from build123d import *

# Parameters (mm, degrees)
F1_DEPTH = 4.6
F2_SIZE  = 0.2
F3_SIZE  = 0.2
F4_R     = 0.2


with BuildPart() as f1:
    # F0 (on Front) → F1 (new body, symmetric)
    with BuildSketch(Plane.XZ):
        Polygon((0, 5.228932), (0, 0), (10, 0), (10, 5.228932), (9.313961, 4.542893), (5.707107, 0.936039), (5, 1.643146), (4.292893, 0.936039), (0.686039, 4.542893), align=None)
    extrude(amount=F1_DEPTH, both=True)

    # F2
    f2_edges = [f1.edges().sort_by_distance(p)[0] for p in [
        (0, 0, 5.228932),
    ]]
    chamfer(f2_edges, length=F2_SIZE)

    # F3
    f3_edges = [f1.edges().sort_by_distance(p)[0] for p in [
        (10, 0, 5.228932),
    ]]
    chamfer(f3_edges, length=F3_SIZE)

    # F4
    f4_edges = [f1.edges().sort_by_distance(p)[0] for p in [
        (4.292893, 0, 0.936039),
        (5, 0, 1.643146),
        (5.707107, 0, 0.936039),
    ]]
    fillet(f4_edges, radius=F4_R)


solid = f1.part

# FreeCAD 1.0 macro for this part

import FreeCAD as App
import Part
import Sketcher

V = App.Vector
Q = App.Units.Quantity


def edges_at(feature, points):
    """Names of the edges that pass closest to the given points."""
    edges = feature.Shape.Edges
    near = lambda p: min(range(len(edges)), key=lambda i: edges[i].distToShape(Part.Vertex(*p))[0])
    return sorted({f"Edge{near(p) + 1}" for p in points})

doc = App.newDocument("Part")
body = doc.addObject("PartDesign::Body", "Body")

sketch1 = body.newObject("Sketcher::SketchObject", "Sketch")
sketch1.AttachmentSupport = (doc.getObject("XZ_Plane"), [""])
sketch1.MapMode = "FlatFace"
sketch1.addGeometry(Part.LineSegment(V(0, 5.2, 0), V(0, 0, 0)), False)
sketch1.addGeometry(Part.LineSegment(V(0, 0, 0), V(10, 0, 0)), False)
sketch1.addGeometry(Part.LineSegment(V(10, 0, 0), V(10, 5.2, 0)), False)
sketch1.addGeometry(Part.LineSegment(V(10, 5.2, 0), V(5.7, 0.9, 0)), False)
sketch1.addGeometry(Part.LineSegment(V(5.7, 0.9, 0), V(5, 1.6, 0)), False)
sketch1.addGeometry(Part.LineSegment(V(5, 1.6, 0), V(4.3, 0.9, 0)), False)
sketch1.addGeometry(Part.LineSegment(V(4.3, 0.9, 0), V(0, 5.2, 0)), False)
sketch1.addConstraint(Sketcher.Constraint("Coincident", 0, 2, 1, 1))
sketch1.addConstraint(Sketcher.Constraint("Coincident", 1, 2, 2, 1))
sketch1.addConstraint(Sketcher.Constraint("Coincident", 2, 2, 3, 1))
sketch1.addConstraint(Sketcher.Constraint("Coincident", 3, 2, 4, 1))
sketch1.addConstraint(Sketcher.Constraint("Coincident", 4, 2, 5, 1))
sketch1.addConstraint(Sketcher.Constraint("Coincident", 5, 2, 6, 1))
sketch1.addConstraint(Sketcher.Constraint("Coincident", 6, 2, 0, 1))
sketch1.addConstraint(Sketcher.Constraint("Vertical", 0))
sketch1.addConstraint(Sketcher.Constraint("Horizontal", 1))
sketch1.addConstraint(Sketcher.Constraint("Vertical", 2))
sketch1.addConstraint(Sketcher.Constraint("Coincident", 0, 2, -1, 1))
sketch1.addConstraint(Sketcher.Constraint("Perpendicular", 3, 4))
sketch1.addConstraint(Sketcher.Constraint("Perpendicular", 4, 5))
sketch1.addConstraint(Sketcher.Constraint("Perpendicular", 5, 6))
sketch1.addConstraint(Sketcher.Constraint("Horizontal", 3, 2, 5, 2))
sketch1.addConstraint(Sketcher.Constraint("Horizontal", 2, 2, 6, 2))
sketch1.addConstraint(Sketcher.Constraint("Equal", 4, 5))
sketch1.addConstraint(Sketcher.Constraint("DistanceX", 1, 1, 1, 2, Q("10 mm")))
sketch1.addConstraint(Sketcher.Constraint("Distance", 4, Q("1 mm")))
sketch1.addConstraint(Sketcher.Constraint("DistanceY", 0, 2, 0, 1, Q("5.228932 mm")))
pad1 = body.newObject("PartDesign::Pad", "Pad")
pad1.Profile = sketch1
pad1.Length = 9.2
pad1.Midplane = True
doc.recompute()

chamfer = body.newObject("PartDesign::Chamfer", "Chamfer")
chamfer.Base = (pad1, edges_at(pad1, [(0, 0, 5.229)]))
chamfer.Size = 0.2
doc.recompute()

chamfer2 = body.newObject("PartDesign::Chamfer", "Chamfer001")
chamfer2.Base = (chamfer, edges_at(chamfer, [(10, 0, 5.229)]))
chamfer2.Size = 0.2
doc.recompute()

fillet = body.newObject("PartDesign::Fillet", "Fillet")
fillet.Base = (chamfer2, edges_at(chamfer2, [(4.293, 0, 0.936), (5, 0, 1.643), (5.707, 0, 0.936)]))
fillet.Radius = 0.2

doc.recompute()
